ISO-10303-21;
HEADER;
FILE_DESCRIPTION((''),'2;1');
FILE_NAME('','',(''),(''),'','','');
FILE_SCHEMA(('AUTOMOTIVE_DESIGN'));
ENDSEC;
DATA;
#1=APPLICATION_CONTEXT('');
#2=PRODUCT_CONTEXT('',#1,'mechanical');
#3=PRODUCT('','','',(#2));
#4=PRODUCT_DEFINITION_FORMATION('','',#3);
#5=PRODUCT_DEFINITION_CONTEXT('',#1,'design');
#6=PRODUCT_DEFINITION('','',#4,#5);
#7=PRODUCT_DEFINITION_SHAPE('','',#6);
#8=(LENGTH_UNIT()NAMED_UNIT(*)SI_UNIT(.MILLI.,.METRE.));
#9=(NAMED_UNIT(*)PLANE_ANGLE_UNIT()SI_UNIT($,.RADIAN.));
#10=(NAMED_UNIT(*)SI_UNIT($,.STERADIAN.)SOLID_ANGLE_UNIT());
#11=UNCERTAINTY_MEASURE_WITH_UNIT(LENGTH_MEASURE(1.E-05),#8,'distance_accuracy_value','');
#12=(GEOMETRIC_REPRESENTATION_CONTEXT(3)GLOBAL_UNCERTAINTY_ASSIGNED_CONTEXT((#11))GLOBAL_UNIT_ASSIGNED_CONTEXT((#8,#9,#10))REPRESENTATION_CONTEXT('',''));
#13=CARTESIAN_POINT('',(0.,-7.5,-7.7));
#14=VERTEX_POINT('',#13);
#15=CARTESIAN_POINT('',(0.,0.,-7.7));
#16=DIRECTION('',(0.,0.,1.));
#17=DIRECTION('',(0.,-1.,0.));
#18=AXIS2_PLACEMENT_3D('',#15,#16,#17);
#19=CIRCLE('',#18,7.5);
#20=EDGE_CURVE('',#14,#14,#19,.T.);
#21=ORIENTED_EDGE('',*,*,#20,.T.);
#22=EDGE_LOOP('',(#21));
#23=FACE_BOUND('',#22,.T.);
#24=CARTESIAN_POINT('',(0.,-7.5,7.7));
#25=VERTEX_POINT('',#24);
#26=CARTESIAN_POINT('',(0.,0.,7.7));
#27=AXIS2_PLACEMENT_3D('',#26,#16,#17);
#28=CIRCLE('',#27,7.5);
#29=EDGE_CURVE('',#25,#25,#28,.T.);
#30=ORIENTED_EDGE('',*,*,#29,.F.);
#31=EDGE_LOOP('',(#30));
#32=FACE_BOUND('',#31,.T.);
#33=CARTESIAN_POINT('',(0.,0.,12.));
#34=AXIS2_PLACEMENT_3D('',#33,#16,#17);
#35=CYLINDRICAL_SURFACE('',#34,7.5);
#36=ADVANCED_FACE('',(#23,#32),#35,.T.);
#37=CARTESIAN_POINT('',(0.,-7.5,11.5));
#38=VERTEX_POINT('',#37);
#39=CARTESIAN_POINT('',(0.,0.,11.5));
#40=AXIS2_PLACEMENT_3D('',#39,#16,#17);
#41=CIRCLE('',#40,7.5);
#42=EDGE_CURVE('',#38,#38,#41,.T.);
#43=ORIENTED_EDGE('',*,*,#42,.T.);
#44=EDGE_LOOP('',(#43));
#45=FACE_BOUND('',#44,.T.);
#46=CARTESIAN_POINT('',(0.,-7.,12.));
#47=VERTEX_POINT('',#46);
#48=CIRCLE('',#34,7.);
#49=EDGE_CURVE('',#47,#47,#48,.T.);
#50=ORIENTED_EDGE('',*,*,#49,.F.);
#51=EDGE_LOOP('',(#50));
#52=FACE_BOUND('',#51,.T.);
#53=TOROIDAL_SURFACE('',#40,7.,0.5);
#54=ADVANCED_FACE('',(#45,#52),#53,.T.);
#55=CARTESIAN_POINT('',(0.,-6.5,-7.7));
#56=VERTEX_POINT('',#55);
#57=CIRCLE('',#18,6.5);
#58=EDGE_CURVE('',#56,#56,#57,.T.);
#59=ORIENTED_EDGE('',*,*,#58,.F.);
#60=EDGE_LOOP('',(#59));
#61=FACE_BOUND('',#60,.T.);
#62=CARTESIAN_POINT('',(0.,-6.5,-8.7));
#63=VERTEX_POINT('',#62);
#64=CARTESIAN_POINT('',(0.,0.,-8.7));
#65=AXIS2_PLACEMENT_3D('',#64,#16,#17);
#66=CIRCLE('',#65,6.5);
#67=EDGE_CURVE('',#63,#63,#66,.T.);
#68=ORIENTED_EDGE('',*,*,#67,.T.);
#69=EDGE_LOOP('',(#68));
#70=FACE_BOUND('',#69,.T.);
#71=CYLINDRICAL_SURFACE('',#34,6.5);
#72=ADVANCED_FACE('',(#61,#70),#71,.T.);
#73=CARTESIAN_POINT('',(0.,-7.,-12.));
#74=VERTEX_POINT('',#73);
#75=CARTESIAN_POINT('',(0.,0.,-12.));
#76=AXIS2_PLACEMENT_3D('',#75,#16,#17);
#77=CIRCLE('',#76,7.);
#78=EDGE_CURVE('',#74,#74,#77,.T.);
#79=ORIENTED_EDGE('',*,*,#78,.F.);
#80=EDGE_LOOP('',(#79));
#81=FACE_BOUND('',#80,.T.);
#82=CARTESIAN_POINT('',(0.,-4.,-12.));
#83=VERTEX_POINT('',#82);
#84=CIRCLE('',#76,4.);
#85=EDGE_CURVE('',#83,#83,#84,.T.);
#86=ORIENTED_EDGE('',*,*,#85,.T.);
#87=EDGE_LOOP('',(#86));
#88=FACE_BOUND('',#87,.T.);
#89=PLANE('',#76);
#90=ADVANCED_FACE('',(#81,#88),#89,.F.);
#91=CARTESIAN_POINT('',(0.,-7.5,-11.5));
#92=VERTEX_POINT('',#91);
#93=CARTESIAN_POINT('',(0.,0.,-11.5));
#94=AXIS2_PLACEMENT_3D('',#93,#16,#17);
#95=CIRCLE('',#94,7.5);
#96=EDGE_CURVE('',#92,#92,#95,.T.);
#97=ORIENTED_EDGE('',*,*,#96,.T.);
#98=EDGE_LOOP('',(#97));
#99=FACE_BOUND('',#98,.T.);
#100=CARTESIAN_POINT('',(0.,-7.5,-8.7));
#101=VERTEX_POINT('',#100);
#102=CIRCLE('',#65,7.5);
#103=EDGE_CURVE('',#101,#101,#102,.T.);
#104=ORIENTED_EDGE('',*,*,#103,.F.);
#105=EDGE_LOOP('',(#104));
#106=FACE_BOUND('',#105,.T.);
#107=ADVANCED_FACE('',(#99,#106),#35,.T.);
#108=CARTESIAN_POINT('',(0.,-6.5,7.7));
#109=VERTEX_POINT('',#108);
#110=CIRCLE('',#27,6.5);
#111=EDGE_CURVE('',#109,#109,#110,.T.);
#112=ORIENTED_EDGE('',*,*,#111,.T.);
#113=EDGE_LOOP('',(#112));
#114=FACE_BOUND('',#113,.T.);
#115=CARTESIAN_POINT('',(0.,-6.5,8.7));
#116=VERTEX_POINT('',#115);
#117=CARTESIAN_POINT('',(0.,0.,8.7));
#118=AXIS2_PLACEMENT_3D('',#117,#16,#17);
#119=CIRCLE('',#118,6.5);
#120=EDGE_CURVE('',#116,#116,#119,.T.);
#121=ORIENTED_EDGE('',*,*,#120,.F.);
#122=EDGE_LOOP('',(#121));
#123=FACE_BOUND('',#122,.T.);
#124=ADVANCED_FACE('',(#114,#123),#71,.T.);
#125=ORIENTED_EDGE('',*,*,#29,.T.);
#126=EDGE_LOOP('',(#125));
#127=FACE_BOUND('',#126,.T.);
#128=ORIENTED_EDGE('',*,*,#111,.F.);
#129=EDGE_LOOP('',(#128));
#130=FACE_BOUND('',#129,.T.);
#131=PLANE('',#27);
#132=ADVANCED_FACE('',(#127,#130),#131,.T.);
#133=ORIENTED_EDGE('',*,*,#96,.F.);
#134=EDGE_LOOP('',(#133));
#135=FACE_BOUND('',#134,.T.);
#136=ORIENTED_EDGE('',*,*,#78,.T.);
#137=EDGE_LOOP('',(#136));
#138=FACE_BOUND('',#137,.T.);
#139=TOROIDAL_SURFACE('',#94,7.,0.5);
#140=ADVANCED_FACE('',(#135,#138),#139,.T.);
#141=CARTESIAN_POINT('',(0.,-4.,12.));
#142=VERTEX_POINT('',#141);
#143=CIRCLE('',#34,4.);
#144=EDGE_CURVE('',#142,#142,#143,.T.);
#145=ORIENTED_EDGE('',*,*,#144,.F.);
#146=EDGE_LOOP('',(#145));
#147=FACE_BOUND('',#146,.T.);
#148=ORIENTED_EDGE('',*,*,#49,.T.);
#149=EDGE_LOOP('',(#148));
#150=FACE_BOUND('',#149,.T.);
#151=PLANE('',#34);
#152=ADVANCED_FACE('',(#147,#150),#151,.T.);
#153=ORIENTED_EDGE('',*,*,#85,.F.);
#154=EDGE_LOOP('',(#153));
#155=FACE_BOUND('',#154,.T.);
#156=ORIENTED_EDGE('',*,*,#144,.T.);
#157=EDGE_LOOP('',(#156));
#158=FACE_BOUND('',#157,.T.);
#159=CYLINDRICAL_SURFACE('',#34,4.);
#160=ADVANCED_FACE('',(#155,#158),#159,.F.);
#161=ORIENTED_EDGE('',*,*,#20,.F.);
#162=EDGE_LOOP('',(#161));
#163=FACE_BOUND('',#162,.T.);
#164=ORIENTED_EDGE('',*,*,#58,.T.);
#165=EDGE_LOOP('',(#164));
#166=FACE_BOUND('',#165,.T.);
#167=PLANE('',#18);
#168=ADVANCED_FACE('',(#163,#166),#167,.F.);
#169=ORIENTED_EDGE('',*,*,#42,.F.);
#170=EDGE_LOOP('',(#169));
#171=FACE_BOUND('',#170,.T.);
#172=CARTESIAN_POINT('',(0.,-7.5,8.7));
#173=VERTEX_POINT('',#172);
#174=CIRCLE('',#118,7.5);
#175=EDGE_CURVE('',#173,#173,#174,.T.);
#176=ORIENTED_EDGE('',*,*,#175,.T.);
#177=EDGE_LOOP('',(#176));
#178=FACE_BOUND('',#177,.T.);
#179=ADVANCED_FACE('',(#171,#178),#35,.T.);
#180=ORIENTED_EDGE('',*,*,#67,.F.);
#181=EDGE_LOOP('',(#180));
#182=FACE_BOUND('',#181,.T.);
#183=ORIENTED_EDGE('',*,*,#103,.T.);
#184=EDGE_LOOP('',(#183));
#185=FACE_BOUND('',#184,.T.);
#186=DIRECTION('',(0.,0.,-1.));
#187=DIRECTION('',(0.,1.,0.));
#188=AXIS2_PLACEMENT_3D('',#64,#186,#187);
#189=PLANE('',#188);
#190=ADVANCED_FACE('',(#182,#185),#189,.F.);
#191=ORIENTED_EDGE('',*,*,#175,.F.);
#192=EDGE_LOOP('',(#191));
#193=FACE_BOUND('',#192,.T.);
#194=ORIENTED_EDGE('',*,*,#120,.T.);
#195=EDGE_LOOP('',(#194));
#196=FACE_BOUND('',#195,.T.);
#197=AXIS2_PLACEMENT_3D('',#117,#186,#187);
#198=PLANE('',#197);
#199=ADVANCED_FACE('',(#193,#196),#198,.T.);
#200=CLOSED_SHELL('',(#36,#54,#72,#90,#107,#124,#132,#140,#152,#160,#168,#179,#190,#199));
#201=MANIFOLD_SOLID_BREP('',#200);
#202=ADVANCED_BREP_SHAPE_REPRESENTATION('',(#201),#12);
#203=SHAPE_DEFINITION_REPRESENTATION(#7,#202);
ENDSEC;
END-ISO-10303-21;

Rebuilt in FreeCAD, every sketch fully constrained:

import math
import FreeCAD as App
import Part
import Sketcher

V = App.Vector

doc = App.newDocument("Part")
body = doc.addObject("PartDesign::Body", "Body")

# Sketch on YZ plane
sketch1 = body.newObject("Sketcher::SketchObject", "Sketch")
sketch1.AttachmentSupport = (doc.getObject("YZ_Plane"), [""])
sketch1.MapMode = "FlatFace"
sketch1.addGeometry([
    Part.LineSegment(V(-7.5, -7.7, 0), V(-6.5, -7.7, 0)),  # 0
    Part.LineSegment(V(-6.5, -7.7, 0), V(-6.5, -8.7, 0)),  # 1
    Part.LineSegment(V(-6.5, -8.7, 0), V(-7.5, -8.7, 0)),  # 2
    Part.LineSegment(V(-7.5, -8.7, 0), V(-7.5, -11.5, 0)),  # 3
    Part.ArcOfCircle(Part.Circle(V(-7, -11.5, 0), V(0, 0, 1), 0.5), math.radians(180), math.radians(270)),  # 4
    Part.LineSegment(V(-7, -12, 0), V(-4, -12, 0)),  # 5
    Part.LineSegment(V(-4, -12, 0), V(-4, 12, 0)),  # 6
    Part.LineSegment(V(-4, 12, 0), V(-7, 12, 0)),  # 7
    Part.ArcOfCircle(Part.Circle(V(-7, 11.5, 0), V(0, 0, 1), 0.5), math.radians(90), math.radians(180)),  # 8
    Part.LineSegment(V(-7.5, 11.5, 0), V(-7.5, 8.7, 0)),  # 9
    Part.LineSegment(V(-7.5, 8.7, 0), V(-6.5, 8.7, 0)),  # 10
    Part.LineSegment(V(-6.5, 8.7, 0), V(-6.5, 7.7, 0)),  # 11
    Part.LineSegment(V(-6.5, 7.7, 0), V(-7.5, 7.7, 0)),  # 12
    Part.LineSegment(V(-7.5, 7.7, 0), V(-7.5, -7.7, 0)),  # 13
], False)
sketch1.addConstraint([
    Sketcher.Constraint("Coincident", 0, 2, 1, 1),
    Sketcher.Constraint("Coincident", 1, 2, 2, 1),
    Sketcher.Constraint("Coincident", 2, 2, 3, 1),
    Sketcher.Constraint("Tangent", 3, 2, 4, 1),
    Sketcher.Constraint("Tangent", 4, 2, 5, 1),
    Sketcher.Constraint("Coincident", 5, 2, 6, 1),
    Sketcher.Constraint("Coincident", 6, 2, 7, 1),
    Sketcher.Constraint("Tangent", 7, 2, 8, 1),
    Sketcher.Constraint("Tangent", 8, 2, 9, 1),
    Sketcher.Constraint("Coincident", 9, 2, 10, 1),
    Sketcher.Constraint("Coincident", 10, 2, 11, 1),
    Sketcher.Constraint("Coincident", 11, 2, 12, 1),
    Sketcher.Constraint("Coincident", 12, 2, 13, 1),
    Sketcher.Constraint("Coincident", 13, 2, 0, 1),
    Sketcher.Constraint("Horizontal", 0),
    Sketcher.Constraint("Vertical", 1),
    Sketcher.Constraint("Horizontal", 2),
    Sketcher.Constraint("Vertical", 3),
    Sketcher.Constraint("Horizontal", 5),
    Sketcher.Constraint("Vertical", 6),
    Sketcher.Constraint("Horizontal", 7),
    Sketcher.Constraint("Vertical", 9),
    Sketcher.Constraint("Horizontal", 10),
    Sketcher.Constraint("Vertical", 11),
    Sketcher.Constraint("Horizontal", 12),
    Sketcher.Constraint("Vertical", 13),
    Sketcher.Constraint("Equal", 4, 8),
    Sketcher.Constraint("Symmetric", 4, 3, 8, 3, -1),
    Sketcher.Constraint("Symmetric", 1, 2, 10, 2, -1),
    Sketcher.Constraint("Vertical", 9, 2, 12, 2),
    Sketcher.Constraint("Equal", 12, 1),
    Sketcher.Constraint("Equal", 1, 11),
    Sketcher.Constraint("Radius", 4, 0.5),
    Sketcher.Constraint("DistanceX", 0, 1, 0, 2, 1.0),
    Sketcher.Constraint("DistanceX", 5, 1, 5, 2, 3.0),
    Sketcher.Constraint("DistanceY", 6, 1, 6, 2, 24.0),
    Sketcher.Constraint("DistanceY", 3, 2, 3, 1, 2.8),
    Sketcher.Constraint("DistanceX", 4, 3, -1, 1, 7.0),
])
revolution = body.newObject("PartDesign::Revolution", "Revolution")
revolution.Profile = sketch1
revolution.ReferenceAxis = (sketch1, ["V_Axis"])
revolution.Angle = 360

doc.recompute()
